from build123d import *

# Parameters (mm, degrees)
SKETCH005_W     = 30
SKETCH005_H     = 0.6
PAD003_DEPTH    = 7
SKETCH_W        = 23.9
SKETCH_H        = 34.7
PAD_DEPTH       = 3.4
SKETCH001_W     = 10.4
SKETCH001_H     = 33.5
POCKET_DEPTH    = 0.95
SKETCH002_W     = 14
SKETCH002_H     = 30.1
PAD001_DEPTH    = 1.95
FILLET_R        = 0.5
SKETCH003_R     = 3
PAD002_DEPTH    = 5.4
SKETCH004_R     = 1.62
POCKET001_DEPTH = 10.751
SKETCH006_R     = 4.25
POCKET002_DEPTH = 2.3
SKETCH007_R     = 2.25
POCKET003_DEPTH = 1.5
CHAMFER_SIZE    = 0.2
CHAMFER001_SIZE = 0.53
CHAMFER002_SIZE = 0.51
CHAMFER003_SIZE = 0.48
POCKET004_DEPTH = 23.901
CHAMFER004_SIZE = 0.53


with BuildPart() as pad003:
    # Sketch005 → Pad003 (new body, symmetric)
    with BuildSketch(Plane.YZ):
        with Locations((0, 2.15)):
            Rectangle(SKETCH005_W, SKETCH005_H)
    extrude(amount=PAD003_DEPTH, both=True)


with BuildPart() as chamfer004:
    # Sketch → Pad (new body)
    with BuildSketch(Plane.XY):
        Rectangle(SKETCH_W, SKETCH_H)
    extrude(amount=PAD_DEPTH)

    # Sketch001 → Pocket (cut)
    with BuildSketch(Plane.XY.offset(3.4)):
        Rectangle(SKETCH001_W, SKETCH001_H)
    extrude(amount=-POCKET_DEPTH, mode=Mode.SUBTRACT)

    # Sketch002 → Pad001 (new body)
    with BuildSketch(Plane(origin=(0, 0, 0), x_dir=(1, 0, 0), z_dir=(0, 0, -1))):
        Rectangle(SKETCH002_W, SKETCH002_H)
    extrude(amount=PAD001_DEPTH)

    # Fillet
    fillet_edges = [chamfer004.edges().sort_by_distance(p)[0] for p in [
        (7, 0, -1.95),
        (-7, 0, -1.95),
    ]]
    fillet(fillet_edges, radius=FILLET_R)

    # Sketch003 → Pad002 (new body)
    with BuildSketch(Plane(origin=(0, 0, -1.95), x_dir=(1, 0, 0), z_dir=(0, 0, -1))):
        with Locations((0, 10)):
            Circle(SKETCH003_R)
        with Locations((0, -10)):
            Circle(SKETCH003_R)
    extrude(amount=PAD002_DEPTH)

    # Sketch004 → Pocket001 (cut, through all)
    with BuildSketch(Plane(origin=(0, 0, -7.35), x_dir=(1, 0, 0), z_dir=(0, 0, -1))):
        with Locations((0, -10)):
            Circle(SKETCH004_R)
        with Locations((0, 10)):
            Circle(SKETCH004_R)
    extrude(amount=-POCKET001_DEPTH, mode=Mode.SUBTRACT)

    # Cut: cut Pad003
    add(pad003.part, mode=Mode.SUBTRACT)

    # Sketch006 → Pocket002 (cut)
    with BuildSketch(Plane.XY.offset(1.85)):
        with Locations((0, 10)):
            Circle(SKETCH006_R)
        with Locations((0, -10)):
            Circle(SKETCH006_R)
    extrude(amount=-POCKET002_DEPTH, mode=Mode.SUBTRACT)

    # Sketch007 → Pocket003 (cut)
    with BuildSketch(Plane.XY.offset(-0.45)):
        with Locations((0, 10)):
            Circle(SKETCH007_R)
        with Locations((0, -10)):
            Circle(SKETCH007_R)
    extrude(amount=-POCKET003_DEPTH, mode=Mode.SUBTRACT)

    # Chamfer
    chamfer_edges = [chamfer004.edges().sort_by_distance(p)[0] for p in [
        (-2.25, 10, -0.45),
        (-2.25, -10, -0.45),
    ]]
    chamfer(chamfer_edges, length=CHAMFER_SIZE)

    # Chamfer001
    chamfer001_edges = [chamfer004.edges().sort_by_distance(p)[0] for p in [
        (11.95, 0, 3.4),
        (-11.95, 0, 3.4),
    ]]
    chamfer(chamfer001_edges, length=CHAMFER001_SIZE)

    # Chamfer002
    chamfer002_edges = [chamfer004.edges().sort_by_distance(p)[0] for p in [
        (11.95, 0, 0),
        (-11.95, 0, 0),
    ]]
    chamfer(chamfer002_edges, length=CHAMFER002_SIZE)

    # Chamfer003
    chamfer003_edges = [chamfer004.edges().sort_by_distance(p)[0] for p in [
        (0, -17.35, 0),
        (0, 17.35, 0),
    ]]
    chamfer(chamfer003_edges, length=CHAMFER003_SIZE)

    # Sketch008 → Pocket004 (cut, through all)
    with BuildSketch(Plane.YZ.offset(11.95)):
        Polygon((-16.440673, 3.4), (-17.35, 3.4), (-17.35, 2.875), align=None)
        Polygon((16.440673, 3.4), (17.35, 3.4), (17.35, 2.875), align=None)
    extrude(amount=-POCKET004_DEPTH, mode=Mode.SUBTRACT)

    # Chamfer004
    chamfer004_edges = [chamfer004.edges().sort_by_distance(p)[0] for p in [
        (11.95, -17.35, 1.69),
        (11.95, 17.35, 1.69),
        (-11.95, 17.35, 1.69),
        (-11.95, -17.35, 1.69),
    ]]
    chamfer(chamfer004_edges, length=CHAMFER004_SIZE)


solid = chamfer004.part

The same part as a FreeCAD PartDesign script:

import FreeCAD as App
import Part
import Sketcher

V = App.Vector
Q = App.Units.Quantity


def edges_at(feature, points):
    """Names of the edges that pass closest to the given points."""
    edges = feature.Shape.Edges
    near = lambda p: min(range(len(edges)), key=lambda i: edges[i].distToShape(Part.Vertex(*p))[0])
    return sorted({f"Edge{near(p) + 1}" for p in points})


def add_polygon(sketch, points):
    """Adds a closed chain of lines whose ends are joined by coincident constraints."""
    first, n = sketch.GeometryCount, len(points)
    for a, b in zip(points, points[1:] + points[:1]):
        sketch.addGeometry(Part.LineSegment(App.Vector(*a, 0), App.Vector(*b, 0)), False)
    for i in range(n):
        sketch.addConstraint(Sketcher.Constraint("Coincident", first + i, 2, first + (i + 1) % n, 1))

doc = App.newDocument("Part")
body = doc.addObject("PartDesign::Body", "Body")

sketch1 = body.newObject("Sketcher::SketchObject", "Sketch")
sketch1.AttachmentSupport = (doc.getObject("YZ_Plane"), [""])
sketch1.MapMode = "FlatFace"
add_polygon(sketch1, [(-15, 2.5), (-15, 1.9), (15, 1.9), (15, 2.5)])
sketch1.addConstraint([
    Sketcher.Constraint("Vertical", 0),
    Sketcher.Constraint("Horizontal", 1),
    Sketcher.Constraint("Vertical", 2),
    Sketcher.Constraint("Horizontal", 3),
    Sketcher.Constraint("DistanceX", 1, 1, 1, 2, 30.0),
    Sketcher.Constraint("DistanceY", 0, 2, 0, 1, 0.6),
    Sketcher.Constraint("DistanceX", 0, 2, -1, 1, 15.0),
    Sketcher.Constraint("DistanceY", -1, 1, 0, 2, 1.85),
])
pad1 = body.newObject("PartDesign::Pad", "Pad")
pad1.Profile = sketch1
pad1.Length = 14
pad1.Midplane = True
body2 = doc.addObject("PartDesign::Body", "Body001")

sketch2 = body2.newObject("Sketcher::SketchObject", "Sketch001")
sketch2.AttachmentSupport = (doc.getObject("XY_Plane001"), [""])
sketch2.MapMode = "FlatFace"
add_polygon(sketch2, [(-12, 17), (-12, -17), (12, -17), (12, 17)])
sketch2.addConstraint([
    Sketcher.Constraint("Vertical", 0),
    Sketcher.Constraint("Horizontal", 1),
    Sketcher.Constraint("Vertical", 2),
    Sketcher.Constraint("Horizontal", 3),
    Sketcher.Constraint("Symmetric", 0, 2, 2, 2, -1, 1),
    Sketcher.Constraint("DistanceX", 1, 1, 1, 2, 23.9),
    Sketcher.Constraint("DistanceY", 0, 2, 0, 1, 34.7),
])
pad2 = body2.newObject("PartDesign::Pad", "Pad001")
pad2.Profile = sketch2
pad2.Length = 3.4

sketch3 = body2.newObject("Sketcher::SketchObject", "Sketch002")
sketch3.AttachmentSupport = (doc.getObject("XY_Plane001"), [""])
sketch3.MapMode = "FlatFace"
sketch3.AttachmentOffset = App.Placement(V(0, 0, 3.4), App.Rotation())
add_polygon(sketch3, [(-5, 17), (-5, -17), (5, -17), (5, 17)])
sketch3.addConstraint([
    Sketcher.Constraint("Vertical", 0),
    Sketcher.Constraint("Horizontal", 1),
    Sketcher.Constraint("Vertical", 2),
    Sketcher.Constraint("Horizontal", 3),
    Sketcher.Constraint("Symmetric", 0, 2, 2, 2, -1, 1),
    Sketcher.Constraint("DistanceX", 1, 1, 1, 2, 10.4),
    Sketcher.Constraint("DistanceY", 0, 2, 0, 1, 33.5),
])
pocket1 = body2.newObject("PartDesign::Pocket", "Pocket")
pocket1.Profile = sketch3
pocket1.Length = 0.95

sketch4 = body2.newObject("Sketcher::SketchObject", "Sketch003")
sketch4.AttachmentSupport = (doc.getObject("XY_Plane001"), [""])
sketch4.MapMode = "FlatFace"
add_polygon(sketch4, [(-7, -15), (-7, 15), (7, 15), (7, -15)])
sketch4.addConstraint([
    Sketcher.Constraint("Vertical", 0),
    Sketcher.Constraint("Horizontal", 1),
    Sketcher.Constraint("Vertical", 2),
    Sketcher.Constraint("Horizontal", 3),
    Sketcher.Constraint("Symmetric", 0, 2, 2, 2, -1, 1),
    Sketcher.Constraint("DistanceX", 1, 1, 1, 2, 14.0),
    Sketcher.Constraint("DistanceY", 0, 1, 0, 2, 30.1),
])
pad3 = body2.newObject("PartDesign::Pad", "Pad002")
pad3.Profile = sketch4
pad3.Length = 1.95
pad3.Reversed = True
doc.recompute()

fillet = body2.newObject("PartDesign::Fillet", "Fillet")
fillet.Base = (pad3, edges_at(pad3, [(7, 0, -1.95), (-7, 0, -1.95)]))
fillet.Radius = 0.5

sketch5 = body2.newObject("Sketcher::SketchObject", "Sketch004")
sketch5.AttachmentSupport = (doc.getObject("XY_Plane001"), [""])
sketch5.MapMode = "FlatFace"
sketch5.AttachmentOffset = App.Placement(V(0, 0, -1.95), App.Rotation())
sketch5.addGeometry([
    Part.Circle(V(0, -10, 0), V(0, 0, 1), 3),
    Part.Circle(V(0, 10, 0), V(0, 0, 1), 3),
], False)
sketch5.addConstraint([
    Sketcher.Constraint("Equal", 0, 1),
    Sketcher.Constraint("Symmetric", 0, 3, 1, 3, -1, 1),
    Sketcher.Constraint("PointOnObject", 0, 3, -2),
    Sketcher.Constraint("Diameter", 0, 6.0),
    Sketcher.Constraint("DistanceY", 0, 3, -1, 1, 10.0),
])
pad4 = body2.newObject("PartDesign::Pad", "Pad003")
pad4.Profile = sketch5
pad4.Length = 5.4
pad4.Reversed = True

sketch6 = body2.newObject("Sketcher::SketchObject", "Sketch005")
sketch6.AttachmentSupport = (doc.getObject("XY_Plane001"), [""])
sketch6.MapMode = "FlatFace"
sketch6.AttachmentOffset = App.Placement(V(0, 0, -7.35), App.Rotation())
sketch6.addGeometry([
    Part.Circle(V(0, 10, 0), V(0, 0, 1), 1.6),
    Part.Circle(V(0, -10, 0), V(0, 0, 1), 1.6),
], False)
sketch6.addConstraint([
    Sketcher.Constraint("Equal", 0, 1),
    Sketcher.Constraint("Symmetric", 0, 3, 1, 3, -1, 1),
    Sketcher.Constraint("PointOnObject", 0, 3, -2),
    Sketcher.Constraint("Diameter", 0, 3.24),
    Sketcher.Constraint("DistanceY", -1, 1, 0, 3, 10.0),
])
pocket2 = body2.newObject("PartDesign::Pocket", "Pocket001")
pocket2.Profile = sketch6
pocket2.Type = "ThroughAll"
pocket2.Reversed = True
doc.recompute()

boolean = body2.newObject("PartDesign::Boolean", "Boolean")
boolean.Type = "Cut"
boolean.addObjects([body])

sketch7 = body2.newObject("Sketcher::SketchObject", "Sketch006")
sketch7.AttachmentSupport = (doc.getObject("XY_Plane001"), [""])
sketch7.MapMode = "FlatFace"
sketch7.AttachmentOffset = App.Placement(V(0, 0, 1.85), App.Rotation())
sketch7.addGeometry([
    Part.Circle(V(0, 10, 0), V(0, 0, 1), 4.2),
    Part.Circle(V(0, -10, 0), V(0, 0, 1), 4.2),
], False)
sketch7.addConstraint([
    Sketcher.Constraint("Equal", 0, 1),
    Sketcher.Constraint("Symmetric", 0, 3, 1, 3, -1, 1),
    Sketcher.Constraint("PointOnObject", 0, 3, -2),
    Sketcher.Constraint("Diameter", 0, 8.5),
    Sketcher.Constraint("DistanceY", -1, 1, 0, 3, 10.0),
])
pocket3 = body2.newObject("PartDesign::Pocket", "Pocket002")
pocket3.Profile = sketch7
pocket3.Length = 2.3

sketch8 = body2.newObject("Sketcher::SketchObject", "Sketch007")
sketch8.AttachmentSupport = (doc.getObject("XY_Plane001"), [""])
sketch8.MapMode = "FlatFace"
sketch8.AttachmentOffset = App.Placement(V(0, 0, -0.45), App.Rotation())
sketch8.addGeometry([
    Part.Circle(V(0, 10, 0), V(0, 0, 1), 2.2),
    Part.Circle(V(0, -10, 0), V(0, 0, 1), 2.2),
], False)
sketch8.addConstraint([
    Sketcher.Constraint("Equal", 0, 1),
    Sketcher.Constraint("Symmetric", 0, 3, 1, 3, -1, 1),
    Sketcher.Constraint("PointOnObject", 0, 3, -2),
    Sketcher.Constraint("Diameter", 0, 4.5),
    Sketcher.Constraint("DistanceY", -1, 1, 0, 3, 10.0),
])
pocket4 = body2.newObject("PartDesign::Pocket", "Pocket003")
pocket4.Profile = sketch8
pocket4.Length = 1.5
doc.recompute()

chamfer = body2.newObject("PartDesign::Chamfer", "Chamfer")
chamfer.Base = (pocket4, edges_at(pocket4, [(-2.25, 10, -0.45), (-2.25, -10, -0.45)]))
chamfer.Size = 0.2
doc.recompute()

chamfer2 = body2.newObject("PartDesign::Chamfer", "Chamfer001")
chamfer2.Base = (chamfer, edges_at(chamfer, [(11.95, 0, 3.4), (-11.95, 0, 3.4)]))
chamfer2.Size = 0.53
doc.recompute()

chamfer3 = body2.newObject("PartDesign::Chamfer", "Chamfer002")
chamfer3.Base = (chamfer2, edges_at(chamfer2, [(11.95, 0, 0), (-11.95, 0, 0)]))
chamfer3.Size = 0.51
doc.recompute()

chamfer4 = body2.newObject("PartDesign::Chamfer", "Chamfer003")
chamfer4.Base = (chamfer3, edges_at(chamfer3, [(0, -17.35, 0), (0, 17.35, 0)]))
chamfer4.Size = 0.48

sketch9 = body2.newObject("Sketcher::SketchObject", "Sketch008")
sketch9.AttachmentSupport = (doc.getObject("YZ_Plane001"), [""])
sketch9.MapMode = "FlatFace"
sketch9.AttachmentOffset = App.Placement(V(0, 0, 11.95), App.Rotation())
add_polygon(sketch9, [(-16.4, 3.4), (-17.4, 3.4), (-17.4, 2.9)])
add_polygon(sketch9, [(17.4, 3.4), (16.4, 3.4), (17.4, 2.9)])
sketch9.addConstraint([
    Sketcher.Constraint("Horizontal", 0),
    Sketcher.Constraint("Vertical", 1),
    Sketcher.Constraint("Horizontal", 3),
    Sketcher.Constraint("Vertical", 5),
    Sketcher.Constraint("Symmetric", 2, 2, 3, 2, -2),
    Sketcher.Constraint("Symmetric", 1, 2, 4, 2, -2),
    Sketcher.Constraint("Angle", 2, Q("29.999991 deg")),
    Sketcher.Constraint("DistanceY", -1, 1, 0, 2, 3.4),
    Sketcher.Constraint("DistanceX", 1, 2, 4, 2, 34.7),
    Sketcher.Constraint("Distance", 2, 1.05),
])
pocket5 = body2.newObject("PartDesign::Pocket", "Pocket004")
pocket5.Profile = sketch9
pocket5.Type = "ThroughAll"
doc.recompute()

chamfer5 = body2.newObject("PartDesign::Chamfer", "Chamfer004")
chamfer5.Base = (pocket5, edges_at(pocket5, [
    (11.95, -17.35, 1.69),
    (11.95, 17.35, 1.69),
    (-11.95, 17.35, 1.69),
    (-11.95, -17.35, 1.69),
]))
chamfer5.Size = 0.53

doc.recompute()
